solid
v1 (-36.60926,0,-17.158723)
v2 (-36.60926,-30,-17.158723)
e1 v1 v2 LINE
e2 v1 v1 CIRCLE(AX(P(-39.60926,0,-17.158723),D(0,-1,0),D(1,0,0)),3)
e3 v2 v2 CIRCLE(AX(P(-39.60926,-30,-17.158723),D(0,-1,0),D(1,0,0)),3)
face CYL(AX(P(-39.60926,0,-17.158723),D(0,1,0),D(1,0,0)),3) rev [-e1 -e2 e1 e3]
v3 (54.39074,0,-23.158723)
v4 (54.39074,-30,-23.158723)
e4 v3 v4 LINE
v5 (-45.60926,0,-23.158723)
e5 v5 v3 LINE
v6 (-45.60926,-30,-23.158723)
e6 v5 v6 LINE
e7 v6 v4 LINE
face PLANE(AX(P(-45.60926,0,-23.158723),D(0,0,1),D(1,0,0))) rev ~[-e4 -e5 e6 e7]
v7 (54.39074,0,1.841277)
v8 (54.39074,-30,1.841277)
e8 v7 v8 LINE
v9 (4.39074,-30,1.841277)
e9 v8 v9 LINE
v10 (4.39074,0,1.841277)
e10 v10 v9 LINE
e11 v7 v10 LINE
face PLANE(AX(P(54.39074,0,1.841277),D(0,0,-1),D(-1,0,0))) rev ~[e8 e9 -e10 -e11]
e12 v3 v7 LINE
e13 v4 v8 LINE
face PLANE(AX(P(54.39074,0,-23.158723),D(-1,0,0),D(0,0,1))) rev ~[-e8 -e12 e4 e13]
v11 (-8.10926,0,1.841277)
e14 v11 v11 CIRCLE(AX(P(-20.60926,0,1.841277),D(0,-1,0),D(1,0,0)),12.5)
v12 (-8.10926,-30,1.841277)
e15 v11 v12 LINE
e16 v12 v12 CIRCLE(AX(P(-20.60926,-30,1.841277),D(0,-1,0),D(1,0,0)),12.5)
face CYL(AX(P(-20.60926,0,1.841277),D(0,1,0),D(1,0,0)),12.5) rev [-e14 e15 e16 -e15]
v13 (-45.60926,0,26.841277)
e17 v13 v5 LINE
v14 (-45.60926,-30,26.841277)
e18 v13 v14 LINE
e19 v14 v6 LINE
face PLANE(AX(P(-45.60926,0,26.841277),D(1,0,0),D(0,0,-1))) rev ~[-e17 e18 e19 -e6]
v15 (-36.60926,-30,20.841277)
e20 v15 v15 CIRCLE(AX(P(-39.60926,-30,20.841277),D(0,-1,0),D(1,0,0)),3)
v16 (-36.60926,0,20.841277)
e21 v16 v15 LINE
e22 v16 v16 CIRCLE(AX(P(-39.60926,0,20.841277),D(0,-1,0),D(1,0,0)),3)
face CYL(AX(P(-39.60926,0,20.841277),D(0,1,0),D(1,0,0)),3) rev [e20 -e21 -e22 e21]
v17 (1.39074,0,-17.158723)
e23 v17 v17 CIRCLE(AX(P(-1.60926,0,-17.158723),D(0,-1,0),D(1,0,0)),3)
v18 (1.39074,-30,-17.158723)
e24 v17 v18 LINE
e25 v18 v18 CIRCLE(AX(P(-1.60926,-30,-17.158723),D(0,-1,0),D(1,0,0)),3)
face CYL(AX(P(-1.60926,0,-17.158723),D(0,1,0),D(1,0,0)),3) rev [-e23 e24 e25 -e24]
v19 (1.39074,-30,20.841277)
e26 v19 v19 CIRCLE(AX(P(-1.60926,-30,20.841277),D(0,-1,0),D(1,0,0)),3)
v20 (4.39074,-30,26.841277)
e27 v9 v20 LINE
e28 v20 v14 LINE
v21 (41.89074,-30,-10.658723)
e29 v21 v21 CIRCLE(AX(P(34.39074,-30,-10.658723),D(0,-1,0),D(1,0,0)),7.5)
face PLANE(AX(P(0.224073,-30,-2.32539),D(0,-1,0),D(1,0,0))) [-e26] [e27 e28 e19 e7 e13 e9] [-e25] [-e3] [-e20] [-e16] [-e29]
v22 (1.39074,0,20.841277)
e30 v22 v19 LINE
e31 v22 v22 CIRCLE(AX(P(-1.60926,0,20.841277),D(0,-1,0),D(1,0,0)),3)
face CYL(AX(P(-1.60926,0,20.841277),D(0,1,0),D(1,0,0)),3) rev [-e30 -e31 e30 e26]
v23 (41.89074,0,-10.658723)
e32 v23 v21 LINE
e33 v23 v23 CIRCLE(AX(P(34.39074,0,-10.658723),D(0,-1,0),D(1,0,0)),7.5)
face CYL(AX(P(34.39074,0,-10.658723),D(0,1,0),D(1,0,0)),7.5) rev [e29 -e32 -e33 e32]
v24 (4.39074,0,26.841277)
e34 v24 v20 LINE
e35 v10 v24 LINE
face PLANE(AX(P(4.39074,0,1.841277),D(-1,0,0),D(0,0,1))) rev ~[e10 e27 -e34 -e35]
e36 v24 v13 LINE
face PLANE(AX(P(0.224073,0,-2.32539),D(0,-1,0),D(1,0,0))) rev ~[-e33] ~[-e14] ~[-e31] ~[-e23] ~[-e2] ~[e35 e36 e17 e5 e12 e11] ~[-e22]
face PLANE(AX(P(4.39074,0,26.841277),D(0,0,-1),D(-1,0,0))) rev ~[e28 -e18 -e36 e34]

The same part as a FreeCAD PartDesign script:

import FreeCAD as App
import Part
import Sketcher

doc = App.newDocument("Part")
body = doc.addObject("PartDesign::Body", "Body")

# Sketch on XZ plane
sketch1 = body.newObject("Sketcher::SketchObject", "Sketch")
sketch1.AttachmentSupport = (doc.getObject("XZ_Plane"), [""])
sketch1.MapMode = "FlatFace"
sketch1.addGeometry([
    Part.LineSegment(App.Vector(4.4, 26.8, 0), App.Vector(-45.6, 26.8, 0)),  # 0
    Part.LineSegment(App.Vector(-45.6, 26.8, 0), App.Vector(-45.6, -23.2, 0)),  # 1
    Part.LineSegment(App.Vector(-45.6, -23.2, 0), App.Vector(54.4, -23.2, 0)),  # 2
    Part.LineSegment(App.Vector(54.4, -23.2, 0), App.Vector(54.4, 1.8, 0)),  # 3
    Part.LineSegment(App.Vector(54.4, 1.8, 0), App.Vector(4.4, 1.8, 0)),  # 4
    Part.LineSegment(App.Vector(4.4, 1.8, 0), App.Vector(4.4, 26.8, 0)),  # 5
    Part.Circle(App.Vector(-39.6, -17.2, 0), App.Vector(0, 0, 1), 3),  # 6
    Part.Circle(App.Vector(-1.6, -17.2, 0), App.Vector(0, 0, 1), 3),  # 7
    Part.Circle(App.Vector(-20.6, 1.8, 0), App.Vector(0, 0, 1), 12.5),  # 8
    Part.Circle(App.Vector(34.4, -10.7, 0), App.Vector(0, 0, 1), 7.5),  # 9
    Part.Circle(App.Vector(-39.6, 20.8, 0), App.Vector(0, 0, 1), 3),  # 10
    Part.Circle(App.Vector(-1.6, 20.8, 0), App.Vector(0, 0, 1), 3),  # 11
], False)
sketch1.addConstraint([
    Sketcher.Constraint("Coincident", 0, 2, 1, 1),
    Sketcher.Constraint("Coincident", 1, 2, 2, 1),
    Sketcher.Constraint("Coincident", 2, 2, 3, 1),
    Sketcher.Constraint("Coincident", 3, 2, 4, 1),
    Sketcher.Constraint("Coincident", 4, 2, 5, 1),
    Sketcher.Constraint("Coincident", 5, 2, 0, 1),
    Sketcher.Constraint("Horizontal", 0),
    Sketcher.Constraint("Vertical", 1),
    Sketcher.Constraint("Horizontal", 2),
    Sketcher.Constraint("Vertical", 3),
    Sketcher.Constraint("Horizontal", 4),
    Sketcher.Constraint("Vertical", 5),
    Sketcher.Constraint("Equal", 6, 7),
    Sketcher.Constraint("Equal", 7, 10),
    Sketcher.Constraint("Equal", 10, 11),
    Sketcher.Constraint("Horizontal", 6, 3, 7, 3),
    Sketcher.Constraint("Horizontal", 10, 3, 11, 3),
    Sketcher.Constraint("Horizontal", 8, 3, 3, 2),
    Sketcher.Constraint("Vertical", 6, 3, 10, 3),
    Sketcher.Constraint("Vertical", 7, 3, 11, 3),
    Sketcher.Constraint("Equal", 0, 4),
    Sketcher.Constraint("Equal", 4, 1),
    Sketcher.Constraint("Equal", 3, 5),
    Sketcher.Constraint("Diameter", 6, 6.0),
    Sketcher.Constraint("Diameter", 8, 25.0),
    Sketcher.Constraint("Diameter", 9, 15.0),
    Sketcher.Constraint("DistanceX", 0, 2, 0, 1, 50.0),
    Sketcher.Constraint("DistanceX", 6, 3, 7, 3, 38.0),
    Sketcher.Constraint("DistanceX", 6, 3, 8, 3, 19.0),
    Sketcher.Constraint("DistanceY", 6, 3, 8, 3, 19.0),
    Sketcher.Constraint("DistanceX", 7, 3, 9, 3, 36.0),
    Sketcher.Constraint("DistanceY", 8, 3, 10, 3, 19.0),
    Sketcher.Constraint("DistanceX", 0, 2, 10, 3, 6.0),
    Sketcher.Constraint("DistanceY", 7, 3, 9, 3, 6.5),
    Sketcher.Constraint("DistanceX", 6, 3, -1, 1, 39.60926),
    Sketcher.Constraint("DistanceY", 6, 3, -1, 1, 17.158723),
])
pad1 = body.newObject("PartDesign::Pad", "Pad")
pad1.Profile = sketch1
pad1.Length = 30

doc.recompute()
